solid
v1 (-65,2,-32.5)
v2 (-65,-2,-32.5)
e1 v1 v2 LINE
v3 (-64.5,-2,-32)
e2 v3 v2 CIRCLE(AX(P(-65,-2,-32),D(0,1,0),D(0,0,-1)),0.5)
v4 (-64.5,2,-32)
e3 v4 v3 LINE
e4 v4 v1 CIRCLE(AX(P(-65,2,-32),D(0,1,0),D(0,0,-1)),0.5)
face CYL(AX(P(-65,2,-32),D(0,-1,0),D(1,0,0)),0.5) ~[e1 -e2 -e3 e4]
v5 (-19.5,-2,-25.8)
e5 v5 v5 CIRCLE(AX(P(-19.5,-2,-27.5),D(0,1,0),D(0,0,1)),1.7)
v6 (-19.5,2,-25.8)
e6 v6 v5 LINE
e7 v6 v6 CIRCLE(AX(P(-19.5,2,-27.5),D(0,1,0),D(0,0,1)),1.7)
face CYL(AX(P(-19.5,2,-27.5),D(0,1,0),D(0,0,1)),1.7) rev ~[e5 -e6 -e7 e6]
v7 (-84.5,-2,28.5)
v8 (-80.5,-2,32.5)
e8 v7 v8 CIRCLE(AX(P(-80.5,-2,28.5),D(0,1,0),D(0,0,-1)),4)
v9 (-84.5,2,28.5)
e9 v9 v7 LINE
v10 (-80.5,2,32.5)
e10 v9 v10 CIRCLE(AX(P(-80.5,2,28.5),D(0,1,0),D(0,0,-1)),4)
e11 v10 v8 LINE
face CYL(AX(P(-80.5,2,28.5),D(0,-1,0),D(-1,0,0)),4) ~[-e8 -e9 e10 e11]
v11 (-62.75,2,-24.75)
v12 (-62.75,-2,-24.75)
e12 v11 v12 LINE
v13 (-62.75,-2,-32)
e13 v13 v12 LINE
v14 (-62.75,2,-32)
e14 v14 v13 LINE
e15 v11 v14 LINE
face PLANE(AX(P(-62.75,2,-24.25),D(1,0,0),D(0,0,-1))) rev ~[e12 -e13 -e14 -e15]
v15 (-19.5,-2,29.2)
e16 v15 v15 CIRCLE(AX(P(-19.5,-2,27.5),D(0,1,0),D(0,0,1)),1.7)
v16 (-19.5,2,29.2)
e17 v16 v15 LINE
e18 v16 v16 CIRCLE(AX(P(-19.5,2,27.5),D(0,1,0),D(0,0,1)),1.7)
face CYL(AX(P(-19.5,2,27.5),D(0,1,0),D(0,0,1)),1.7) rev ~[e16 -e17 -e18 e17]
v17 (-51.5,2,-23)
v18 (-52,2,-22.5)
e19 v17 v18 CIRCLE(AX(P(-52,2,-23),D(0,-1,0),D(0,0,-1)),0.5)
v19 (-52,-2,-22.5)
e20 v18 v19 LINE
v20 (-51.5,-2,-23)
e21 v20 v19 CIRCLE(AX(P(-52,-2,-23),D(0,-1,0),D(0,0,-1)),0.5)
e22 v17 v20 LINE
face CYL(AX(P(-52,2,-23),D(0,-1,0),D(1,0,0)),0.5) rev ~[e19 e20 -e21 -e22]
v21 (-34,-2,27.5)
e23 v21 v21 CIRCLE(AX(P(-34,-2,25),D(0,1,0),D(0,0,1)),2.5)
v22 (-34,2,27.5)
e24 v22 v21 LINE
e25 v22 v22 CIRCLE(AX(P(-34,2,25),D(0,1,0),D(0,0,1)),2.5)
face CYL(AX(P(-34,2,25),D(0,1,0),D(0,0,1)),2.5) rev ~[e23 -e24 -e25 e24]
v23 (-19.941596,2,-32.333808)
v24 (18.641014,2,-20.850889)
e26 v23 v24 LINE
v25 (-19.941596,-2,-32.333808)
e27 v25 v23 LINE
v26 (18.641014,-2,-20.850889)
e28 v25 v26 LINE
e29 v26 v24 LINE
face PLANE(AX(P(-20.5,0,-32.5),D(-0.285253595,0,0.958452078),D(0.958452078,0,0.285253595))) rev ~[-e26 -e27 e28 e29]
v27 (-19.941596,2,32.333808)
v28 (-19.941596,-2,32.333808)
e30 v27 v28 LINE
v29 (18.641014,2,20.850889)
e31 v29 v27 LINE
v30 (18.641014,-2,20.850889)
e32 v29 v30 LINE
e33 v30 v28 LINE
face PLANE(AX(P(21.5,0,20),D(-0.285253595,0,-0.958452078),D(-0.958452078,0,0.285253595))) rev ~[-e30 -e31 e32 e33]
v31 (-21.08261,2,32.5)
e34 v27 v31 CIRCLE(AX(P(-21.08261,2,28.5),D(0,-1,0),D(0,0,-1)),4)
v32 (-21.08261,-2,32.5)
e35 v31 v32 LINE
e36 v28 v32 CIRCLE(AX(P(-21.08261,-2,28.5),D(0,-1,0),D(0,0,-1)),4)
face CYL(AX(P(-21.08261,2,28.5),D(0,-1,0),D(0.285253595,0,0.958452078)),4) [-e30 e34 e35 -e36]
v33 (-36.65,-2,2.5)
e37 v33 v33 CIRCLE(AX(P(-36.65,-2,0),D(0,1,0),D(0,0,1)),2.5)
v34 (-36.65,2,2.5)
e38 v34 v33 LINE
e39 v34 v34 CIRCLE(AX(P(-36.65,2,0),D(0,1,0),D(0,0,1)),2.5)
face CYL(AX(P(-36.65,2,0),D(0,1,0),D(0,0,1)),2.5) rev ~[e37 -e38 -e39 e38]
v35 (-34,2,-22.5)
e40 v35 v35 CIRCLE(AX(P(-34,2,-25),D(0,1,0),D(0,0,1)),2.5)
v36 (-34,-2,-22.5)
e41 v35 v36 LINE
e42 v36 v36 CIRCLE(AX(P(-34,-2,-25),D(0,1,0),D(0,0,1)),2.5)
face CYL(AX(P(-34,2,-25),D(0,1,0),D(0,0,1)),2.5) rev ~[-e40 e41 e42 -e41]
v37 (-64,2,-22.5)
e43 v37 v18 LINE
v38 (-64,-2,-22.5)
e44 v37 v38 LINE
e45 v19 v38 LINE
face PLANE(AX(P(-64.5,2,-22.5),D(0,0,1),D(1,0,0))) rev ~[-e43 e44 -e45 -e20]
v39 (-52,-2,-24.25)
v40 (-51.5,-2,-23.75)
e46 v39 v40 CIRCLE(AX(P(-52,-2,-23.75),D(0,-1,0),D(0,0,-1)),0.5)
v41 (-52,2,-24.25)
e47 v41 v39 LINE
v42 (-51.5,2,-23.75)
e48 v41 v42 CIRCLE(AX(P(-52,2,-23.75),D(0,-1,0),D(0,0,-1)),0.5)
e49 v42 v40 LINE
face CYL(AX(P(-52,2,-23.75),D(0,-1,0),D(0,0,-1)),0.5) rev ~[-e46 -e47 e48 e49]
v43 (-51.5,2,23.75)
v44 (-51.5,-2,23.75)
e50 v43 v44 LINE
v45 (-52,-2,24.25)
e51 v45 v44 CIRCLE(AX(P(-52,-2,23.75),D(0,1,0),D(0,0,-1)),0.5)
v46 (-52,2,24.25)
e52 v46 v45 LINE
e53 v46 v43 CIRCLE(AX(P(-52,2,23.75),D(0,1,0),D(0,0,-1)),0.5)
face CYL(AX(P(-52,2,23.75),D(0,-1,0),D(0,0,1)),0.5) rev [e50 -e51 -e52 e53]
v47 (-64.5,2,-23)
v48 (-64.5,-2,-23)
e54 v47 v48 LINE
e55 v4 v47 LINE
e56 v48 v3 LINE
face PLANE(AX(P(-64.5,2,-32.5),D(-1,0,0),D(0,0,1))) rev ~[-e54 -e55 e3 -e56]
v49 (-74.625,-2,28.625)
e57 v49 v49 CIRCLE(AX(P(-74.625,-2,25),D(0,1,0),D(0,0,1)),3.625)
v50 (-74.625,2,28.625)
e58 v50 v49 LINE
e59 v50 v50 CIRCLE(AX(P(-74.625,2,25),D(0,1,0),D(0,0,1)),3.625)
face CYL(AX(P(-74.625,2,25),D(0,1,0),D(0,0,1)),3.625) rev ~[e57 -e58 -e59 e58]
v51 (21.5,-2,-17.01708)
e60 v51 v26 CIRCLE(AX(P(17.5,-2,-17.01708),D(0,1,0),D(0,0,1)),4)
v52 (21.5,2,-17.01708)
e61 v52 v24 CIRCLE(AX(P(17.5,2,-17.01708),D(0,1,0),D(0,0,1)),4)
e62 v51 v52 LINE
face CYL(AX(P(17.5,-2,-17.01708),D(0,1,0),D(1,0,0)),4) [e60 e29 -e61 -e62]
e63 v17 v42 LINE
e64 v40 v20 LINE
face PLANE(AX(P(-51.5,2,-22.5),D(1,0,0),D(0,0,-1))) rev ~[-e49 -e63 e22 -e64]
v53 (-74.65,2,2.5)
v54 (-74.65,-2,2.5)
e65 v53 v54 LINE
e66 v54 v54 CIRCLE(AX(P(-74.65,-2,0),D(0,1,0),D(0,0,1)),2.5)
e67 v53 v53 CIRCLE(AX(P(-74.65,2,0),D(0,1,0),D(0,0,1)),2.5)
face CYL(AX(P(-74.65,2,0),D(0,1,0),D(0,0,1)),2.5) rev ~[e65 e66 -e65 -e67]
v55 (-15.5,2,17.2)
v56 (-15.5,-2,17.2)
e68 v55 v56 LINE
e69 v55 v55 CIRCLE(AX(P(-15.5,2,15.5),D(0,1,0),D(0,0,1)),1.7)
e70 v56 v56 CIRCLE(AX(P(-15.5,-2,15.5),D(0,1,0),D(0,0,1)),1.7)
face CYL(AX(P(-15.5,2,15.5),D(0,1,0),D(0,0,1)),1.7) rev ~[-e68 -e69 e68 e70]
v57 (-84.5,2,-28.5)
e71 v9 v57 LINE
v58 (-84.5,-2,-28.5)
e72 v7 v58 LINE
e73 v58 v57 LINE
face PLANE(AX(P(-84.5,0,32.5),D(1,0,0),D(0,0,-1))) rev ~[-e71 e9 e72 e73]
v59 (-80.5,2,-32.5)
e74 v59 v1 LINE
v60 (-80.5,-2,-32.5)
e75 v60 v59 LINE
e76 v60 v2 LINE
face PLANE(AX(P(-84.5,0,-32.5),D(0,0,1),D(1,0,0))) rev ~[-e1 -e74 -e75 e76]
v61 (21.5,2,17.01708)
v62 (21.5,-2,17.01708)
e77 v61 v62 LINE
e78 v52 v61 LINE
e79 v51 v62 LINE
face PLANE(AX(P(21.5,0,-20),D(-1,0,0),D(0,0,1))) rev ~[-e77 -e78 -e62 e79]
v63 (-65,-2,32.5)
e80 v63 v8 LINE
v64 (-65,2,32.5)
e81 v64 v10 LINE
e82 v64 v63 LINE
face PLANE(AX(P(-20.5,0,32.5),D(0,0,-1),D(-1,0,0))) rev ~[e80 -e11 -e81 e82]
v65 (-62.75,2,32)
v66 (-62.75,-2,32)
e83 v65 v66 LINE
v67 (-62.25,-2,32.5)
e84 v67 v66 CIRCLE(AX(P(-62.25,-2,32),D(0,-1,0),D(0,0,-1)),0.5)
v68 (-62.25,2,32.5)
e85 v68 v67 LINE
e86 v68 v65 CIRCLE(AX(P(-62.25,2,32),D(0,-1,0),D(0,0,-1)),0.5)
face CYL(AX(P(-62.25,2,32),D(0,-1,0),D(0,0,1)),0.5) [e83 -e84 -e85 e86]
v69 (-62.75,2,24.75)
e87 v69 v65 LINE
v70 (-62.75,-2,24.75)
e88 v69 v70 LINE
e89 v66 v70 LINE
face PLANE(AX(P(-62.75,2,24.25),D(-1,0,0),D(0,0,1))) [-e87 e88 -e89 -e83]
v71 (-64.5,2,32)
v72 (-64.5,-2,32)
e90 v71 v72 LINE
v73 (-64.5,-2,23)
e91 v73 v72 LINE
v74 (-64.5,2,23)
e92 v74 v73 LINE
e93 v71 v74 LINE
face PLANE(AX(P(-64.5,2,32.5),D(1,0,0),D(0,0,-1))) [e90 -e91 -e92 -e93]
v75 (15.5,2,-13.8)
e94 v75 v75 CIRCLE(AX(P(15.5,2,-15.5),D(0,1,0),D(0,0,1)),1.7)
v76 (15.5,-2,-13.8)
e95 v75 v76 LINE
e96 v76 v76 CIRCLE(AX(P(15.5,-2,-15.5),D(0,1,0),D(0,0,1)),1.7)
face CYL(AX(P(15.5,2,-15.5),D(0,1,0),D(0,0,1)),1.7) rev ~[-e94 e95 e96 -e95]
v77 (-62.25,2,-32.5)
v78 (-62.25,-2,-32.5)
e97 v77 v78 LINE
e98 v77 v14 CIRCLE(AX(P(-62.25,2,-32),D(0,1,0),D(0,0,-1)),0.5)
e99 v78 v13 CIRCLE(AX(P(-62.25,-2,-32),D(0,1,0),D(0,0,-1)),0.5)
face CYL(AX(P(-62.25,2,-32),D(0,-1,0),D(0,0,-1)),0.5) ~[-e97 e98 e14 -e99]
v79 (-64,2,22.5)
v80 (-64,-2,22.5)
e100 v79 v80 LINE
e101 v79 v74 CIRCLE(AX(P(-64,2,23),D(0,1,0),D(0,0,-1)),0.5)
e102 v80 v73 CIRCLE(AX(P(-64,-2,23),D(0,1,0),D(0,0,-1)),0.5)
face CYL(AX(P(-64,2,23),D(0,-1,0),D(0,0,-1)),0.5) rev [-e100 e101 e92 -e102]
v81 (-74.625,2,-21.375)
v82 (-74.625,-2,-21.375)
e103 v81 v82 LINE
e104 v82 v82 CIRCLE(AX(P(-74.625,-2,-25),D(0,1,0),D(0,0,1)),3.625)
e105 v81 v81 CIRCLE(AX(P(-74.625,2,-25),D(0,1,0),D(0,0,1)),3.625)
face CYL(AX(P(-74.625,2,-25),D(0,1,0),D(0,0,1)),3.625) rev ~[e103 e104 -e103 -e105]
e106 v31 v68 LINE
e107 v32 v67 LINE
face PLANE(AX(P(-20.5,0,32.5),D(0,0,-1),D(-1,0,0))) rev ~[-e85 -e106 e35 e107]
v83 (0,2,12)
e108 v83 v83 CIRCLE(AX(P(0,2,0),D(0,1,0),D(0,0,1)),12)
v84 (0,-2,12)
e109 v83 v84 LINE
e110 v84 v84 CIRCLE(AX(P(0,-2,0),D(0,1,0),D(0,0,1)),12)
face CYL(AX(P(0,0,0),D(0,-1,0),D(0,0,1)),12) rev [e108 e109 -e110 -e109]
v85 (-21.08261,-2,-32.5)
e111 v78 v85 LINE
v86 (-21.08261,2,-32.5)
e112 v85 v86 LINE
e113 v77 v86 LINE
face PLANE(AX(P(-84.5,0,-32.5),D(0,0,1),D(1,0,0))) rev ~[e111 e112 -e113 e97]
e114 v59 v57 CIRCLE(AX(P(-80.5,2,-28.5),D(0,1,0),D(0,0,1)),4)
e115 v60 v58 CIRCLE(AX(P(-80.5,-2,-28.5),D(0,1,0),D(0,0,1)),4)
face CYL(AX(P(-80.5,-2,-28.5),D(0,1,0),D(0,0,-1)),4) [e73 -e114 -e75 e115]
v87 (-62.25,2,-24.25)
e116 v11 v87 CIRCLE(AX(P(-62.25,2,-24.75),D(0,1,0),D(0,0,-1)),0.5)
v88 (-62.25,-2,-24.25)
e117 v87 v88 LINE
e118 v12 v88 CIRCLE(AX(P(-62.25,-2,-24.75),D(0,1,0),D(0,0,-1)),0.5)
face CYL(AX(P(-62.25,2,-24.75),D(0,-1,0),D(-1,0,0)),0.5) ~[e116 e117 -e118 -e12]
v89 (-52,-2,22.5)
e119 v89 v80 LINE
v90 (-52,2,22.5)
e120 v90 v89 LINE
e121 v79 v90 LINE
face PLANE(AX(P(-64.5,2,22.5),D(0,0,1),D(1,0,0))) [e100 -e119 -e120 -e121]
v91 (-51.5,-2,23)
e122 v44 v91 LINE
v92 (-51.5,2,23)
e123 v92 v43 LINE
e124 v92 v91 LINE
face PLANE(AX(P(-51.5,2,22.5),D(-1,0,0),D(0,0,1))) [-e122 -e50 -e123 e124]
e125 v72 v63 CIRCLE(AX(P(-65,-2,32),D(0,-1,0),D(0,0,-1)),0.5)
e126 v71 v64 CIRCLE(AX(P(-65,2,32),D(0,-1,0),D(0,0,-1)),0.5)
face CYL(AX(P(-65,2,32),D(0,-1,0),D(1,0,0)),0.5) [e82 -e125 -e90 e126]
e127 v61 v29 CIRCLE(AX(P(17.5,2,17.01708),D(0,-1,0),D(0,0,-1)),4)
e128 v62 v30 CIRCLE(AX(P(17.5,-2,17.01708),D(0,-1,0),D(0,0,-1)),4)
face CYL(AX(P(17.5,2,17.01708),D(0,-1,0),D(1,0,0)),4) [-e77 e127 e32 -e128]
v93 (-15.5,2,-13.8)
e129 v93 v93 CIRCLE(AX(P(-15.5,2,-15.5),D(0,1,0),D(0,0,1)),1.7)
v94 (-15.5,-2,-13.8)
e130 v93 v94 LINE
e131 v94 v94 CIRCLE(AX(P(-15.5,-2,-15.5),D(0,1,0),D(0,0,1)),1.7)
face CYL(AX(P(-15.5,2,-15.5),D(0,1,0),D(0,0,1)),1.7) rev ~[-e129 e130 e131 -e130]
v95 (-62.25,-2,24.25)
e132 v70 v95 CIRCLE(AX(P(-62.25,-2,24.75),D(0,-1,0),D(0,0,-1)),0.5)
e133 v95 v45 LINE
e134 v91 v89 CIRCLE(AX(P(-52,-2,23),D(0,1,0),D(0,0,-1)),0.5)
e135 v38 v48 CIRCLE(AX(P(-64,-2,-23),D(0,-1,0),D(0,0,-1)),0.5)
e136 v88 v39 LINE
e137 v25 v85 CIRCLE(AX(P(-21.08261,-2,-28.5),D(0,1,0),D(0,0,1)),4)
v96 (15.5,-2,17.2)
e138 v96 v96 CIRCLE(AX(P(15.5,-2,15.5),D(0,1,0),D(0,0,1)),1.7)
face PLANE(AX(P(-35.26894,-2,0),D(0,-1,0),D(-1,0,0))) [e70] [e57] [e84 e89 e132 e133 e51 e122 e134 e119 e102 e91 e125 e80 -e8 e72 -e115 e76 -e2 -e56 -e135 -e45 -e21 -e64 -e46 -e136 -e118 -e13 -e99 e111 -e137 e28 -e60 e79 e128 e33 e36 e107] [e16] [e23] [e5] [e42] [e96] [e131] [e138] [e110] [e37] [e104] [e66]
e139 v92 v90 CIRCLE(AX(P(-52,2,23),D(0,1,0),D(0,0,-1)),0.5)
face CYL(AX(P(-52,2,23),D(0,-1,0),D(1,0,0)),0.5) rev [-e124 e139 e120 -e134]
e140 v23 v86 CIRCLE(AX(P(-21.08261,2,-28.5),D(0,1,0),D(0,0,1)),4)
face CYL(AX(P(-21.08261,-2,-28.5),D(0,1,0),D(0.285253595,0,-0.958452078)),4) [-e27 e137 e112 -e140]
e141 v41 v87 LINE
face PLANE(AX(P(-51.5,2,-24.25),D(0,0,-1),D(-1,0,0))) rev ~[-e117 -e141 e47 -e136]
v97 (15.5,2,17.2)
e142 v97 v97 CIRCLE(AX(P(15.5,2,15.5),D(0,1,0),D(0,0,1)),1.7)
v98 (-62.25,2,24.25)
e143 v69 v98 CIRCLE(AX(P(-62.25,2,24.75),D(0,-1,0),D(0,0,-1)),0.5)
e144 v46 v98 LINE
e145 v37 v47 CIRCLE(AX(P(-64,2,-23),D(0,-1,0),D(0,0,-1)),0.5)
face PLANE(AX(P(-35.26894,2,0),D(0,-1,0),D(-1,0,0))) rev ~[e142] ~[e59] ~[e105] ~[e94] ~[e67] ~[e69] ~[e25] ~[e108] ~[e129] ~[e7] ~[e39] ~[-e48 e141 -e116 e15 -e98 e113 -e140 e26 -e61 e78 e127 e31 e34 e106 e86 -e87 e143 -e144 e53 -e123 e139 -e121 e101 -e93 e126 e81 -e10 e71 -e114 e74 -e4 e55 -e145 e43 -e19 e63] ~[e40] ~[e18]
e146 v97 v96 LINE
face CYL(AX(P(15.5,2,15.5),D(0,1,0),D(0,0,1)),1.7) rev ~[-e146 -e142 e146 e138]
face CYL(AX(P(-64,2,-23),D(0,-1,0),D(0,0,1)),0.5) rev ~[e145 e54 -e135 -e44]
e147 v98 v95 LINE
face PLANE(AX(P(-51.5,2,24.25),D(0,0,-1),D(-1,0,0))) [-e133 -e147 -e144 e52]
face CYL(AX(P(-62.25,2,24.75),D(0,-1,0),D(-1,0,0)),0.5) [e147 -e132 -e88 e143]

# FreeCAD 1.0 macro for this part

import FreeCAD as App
import Part
import Sketcher
from FreeCAD import Vector
Q = App.Units.Quantity


def edges_at(feature, points):
    """Names of the edges that pass closest to the given points."""
    edges = feature.Shape.Edges
    near = lambda p: min(range(len(edges)), key=lambda i: edges[i].distToShape(Part.Vertex(*p))[0])
    return sorted({f"Edge{near(p) + 1}" for p in points})

doc = App.newDocument("Part")
body = doc.addObject("PartDesign::Body", "Body")

# Sketch on XZ plane
sketch1 = doc.addObject("Sketcher::SketchObject", "Sketch")
body.addObject(sketch1)
sketch1.AttachmentSupport = (doc.XZ_Plane, [""])
sketch1.MapMode = "FlatFace"
sketch1.addGeometry([
    Part.LineSegment(Vector(22, 20, 0), Vector(22, -20, 0)),  # 0
    Part.LineSegment(Vector(22, -20, 0), Vector(-20, -32, 0)),  # 1
    Part.LineSegment(Vector(-20, -32, 0), Vector(-84, -32, 0)),  # 2
    Part.LineSegment(Vector(-84, -32, 0), Vector(-84, 32, 0)),  # 3
    Part.LineSegment(Vector(-84, 32, 0), Vector(-20, 32, 0)),  # 4
    Part.LineSegment(Vector(-20, 32, 0), Vector(22, 20, 0)),  # 5
    Part.Circle(Vector(0, 0, 0), Vector(0, 0, 1), 12),  # 6
], False)
sketch1.addConstraint([
    Sketcher.Constraint("Coincident", 0, 2, 1, 1),
    Sketcher.Constraint("Coincident", 1, 2, 2, 1),
    Sketcher.Constraint("Coincident", 2, 2, 3, 1),
    Sketcher.Constraint("Coincident", 3, 2, 4, 1),
    Sketcher.Constraint("Coincident", 4, 2, 5, 1),
    Sketcher.Constraint("Coincident", 5, 2, 0, 1),
    Sketcher.Constraint("Vertical", 0),
    Sketcher.Constraint("Horizontal", 2),
    Sketcher.Constraint("Vertical", 3),
    Sketcher.Constraint("Horizontal", 4),
    Sketcher.Constraint("Coincident", 6, 3, -1, 1),
    Sketcher.Constraint("Symmetric", 1, 2, 4, 2, -1),
    Sketcher.Constraint("Equal", 1, 5),
    Sketcher.Constraint("Diameter", 6, Q("24 mm")),
    Sketcher.Constraint("DistanceX", 2, 2, 2, 1, Q("64 mm")),
    Sketcher.Constraint("DistanceY", 0, 2, 0, 1, Q("40 mm")),
    Sketcher.Constraint("DistanceY", 3, 1, 3, 2, Q("65 mm")),
    Sketcher.Constraint("DistanceX", 1, 2, 0, 2, Q("42 mm")),
    Sketcher.Constraint("DistanceX", -1, 1, 0, 2, Q("21.5 mm")),
])
pad1 = doc.addObject("PartDesign::Pad", "Pad")
body.addObject(pad1)
pad1.Profile = sketch1
pad1.Length = 4
pad1.Midplane = True

# Sketch on XZ plane
sketch2 = doc.addObject("Sketcher::SketchObject", "Sketch001")
body.addObject(sketch2)
sketch2.AttachmentSupport = (doc.XZ_Plane, [""])
sketch2.MapMode = "FlatFace"
sketch2.AttachmentOffset = App.Placement(Vector(0, 0, -2), App.Rotation())
sketch2.addGeometry([
    Part.Circle(Vector(15.5, -15.5, 0), Vector(0, 0, 1), 1.7),  # 0
    Part.Circle(Vector(-15.5, -15.5, 0), Vector(0, 0, 1), 1.7),  # 1
    Part.Circle(Vector(-15.5, 15.5, 0), Vector(0, 0, 1), 1.7),  # 2
    Part.Circle(Vector(15.5, 15.5, 0), Vector(0, 0, 1), 1.7),  # 3
    Part.Circle(Vector(-19.5, -27.5, 0), Vector(0, 0, 1), 1.7),  # 4
    Part.Circle(Vector(-19.5, 27.5, 0), Vector(0, 0, 1), 1.7),  # 5
], False)
sketch2.addConstraint([
    Sketcher.Constraint("Equal", 0, 1),
    Sketcher.Constraint("Equal", 1, 2),
    Sketcher.Constraint("Equal", 2, 3),
    Sketcher.Constraint("Equal", 3, 4),
    Sketcher.Constraint("Equal", 4, 5),
    Sketcher.Constraint("Symmetric", 0, 3, 2, 3, -1, 1),
    Sketcher.Constraint("Symmetric", 1, 3, 3, 3, -1, 1),
    Sketcher.Constraint("Symmetric", 0, 3, 1, 3, -2),
    Sketcher.Constraint("Symmetric", 4, 3, 5, 3, -1),
    Sketcher.Constraint("Diameter", 0, Q("3.4 mm")),
    Sketcher.Constraint("DistanceX", 1, 3, 0, 3, Q("31 mm")),
    Sketcher.Constraint("DistanceY", 1, 3, 2, 3, Q("31 mm")),
    Sketcher.Constraint("DistanceX", 4, 3, 1, 3, Q("4 mm")),
    Sketcher.Constraint("DistanceY", 4, 3, 1, 3, Q("12 mm")),
])
pocket1 = doc.addObject("PartDesign::Pocket", "Pocket")
body.addObject(pocket1)
pocket1.Profile = sketch2
pocket1.Type = "ThroughAll"
pocket1.Reversed = True

# Sketch on XZ plane
sketch3 = doc.addObject("Sketcher::SketchObject", "Sketch002")
body.addObject(sketch3)
sketch3.AttachmentSupport = (doc.XZ_Plane, [""])
sketch3.MapMode = "FlatFace"
sketch3.AttachmentOffset = App.Placement(Vector(0, 0, -2), App.Rotation())
sketch3.addGeometry([
    Part.Circle(Vector(-74.7, 0, 0), Vector(0, 0, 1), 2.5),  # 0
    Part.Circle(Vector(-36.6, 0, 0), Vector(0, 0, 1), 2.5),  # 1
    Part.Circle(Vector(-34, -25, 0), Vector(0, 0, 1), 2.5),  # 2
    Part.Circle(Vector(-34, 25, 0), Vector(0, 0, 1), 2.5),  # 3
    Part.Circle(Vector(-74.6, -25, 0), Vector(0, 0, 1), 3.6),  # 4
    Part.Circle(Vector(-74.6, 25, 0), Vector(0, 0, 1), 3.6),  # 5
], False)
sketch3.addConstraint([
    Sketcher.Constraint("Equal", 0, 1),
    Sketcher.Constraint("Equal", 1, 2),
    Sketcher.Constraint("Equal", 2, 3),
    Sketcher.Constraint("Equal", 4, 5),
    Sketcher.Constraint("Symmetric", 2, 3, 3, 3, -1),
    Sketcher.Constraint("Symmetric", 4, 3, 5, 3, -1),
    Sketcher.Constraint("PointOnObject", 0, 3, -1),
    Sketcher.Constraint("PointOnObject", 1, 3, -1),
    Sketcher.Constraint("Horizontal", 2, 3, 4, 3),
    Sketcher.Constraint("Diameter", 0, Q("5 mm")),
    Sketcher.Constraint("Diameter", 4, Q("7.25 mm")),
    Sketcher.Constraint("DistanceX", 2, 3, -1, 1, Q("34 mm")),
    Sketcher.Constraint("DistanceY", 2, 3, -1, 1, Q("25 mm")),
    Sketcher.Constraint("DistanceX", 0, 3, 1, 3, Q("38 mm")),
    Sketcher.Constraint("DistanceX", 0, 3, -1, 1, Q("74.65 mm")),
    Sketcher.Constraint("DistanceX", 4, 3, -1, 1, Q("74.625 mm")),
])
pocket2 = doc.addObject("PartDesign::Pocket", "Pocket001")
body.addObject(pocket2)
pocket2.Profile = sketch3
pocket2.Type = "ThroughAll"
pocket2.Reversed = True

# Sketch on XZ plane
sketch4 = doc.addObject("Sketcher::SketchObject", "Sketch003")
body.addObject(sketch4)
sketch4.AttachmentSupport = (doc.XZ_Plane, [""])
sketch4.MapMode = "FlatFace"
sketch4.AttachmentOffset = App.Placement(Vector(0, 0, -2), App.Rotation())
sketch4.addGeometry([
    Part.LineSegment(Vector(-64.5, -32.5, 0), Vector(-64.5, -22.5, 0)),  # 0
    Part.LineSegment(Vector(-64.5, -22.5, 0), Vector(-51.5, -22.5, 0)),  # 1
    Part.LineSegment(Vector(-51.5, -22.5, 0), Vector(-51.5, -24.2, 0)),  # 2
    Part.LineSegment(Vector(-51.5, -24.2, 0), Vector(-62.8, -24.2, 0)),  # 3
    Part.LineSegment(Vector(-62.8, -24.2, 0), Vector(-62.8, -32.5, 0)),  # 4
    Part.LineSegment(Vector(-62.8, -32.5, 0), Vector(-64.5, -32.5, 0)),  # 5
    Part.LineSegment(Vector(-62.8, 32.5, 0), Vector(-62.8, 24.2, 0)),  # 6
    Part.LineSegment(Vector(-62.8, 24.2, 0), Vector(-51.5, 24.2, 0)),  # 7
    Part.LineSegment(Vector(-51.5, 24.2, 0), Vector(-51.5, 22.5, 0)),  # 8
    Part.LineSegment(Vector(-51.5, 22.5, 0), Vector(-64.5, 22.5, 0)),  # 9
    Part.LineSegment(Vector(-64.5, 22.5, 0), Vector(-64.5, 32.5, 0)),  # 10
    Part.LineSegment(Vector(-64.5, 32.5, 0), Vector(-62.8, 32.5, 0)),  # 11
], False)
sketch4.addConstraint([
    Sketcher.Constraint("Coincident", 0, 2, 1, 1),
    Sketcher.Constraint("Coincident", 1, 2, 2, 1),
    Sketcher.Constraint("Coincident", 2, 2, 3, 1),
    Sketcher.Constraint("Coincident", 3, 2, 4, 1),
    Sketcher.Constraint("Coincident", 4, 2, 5, 1),
    Sketcher.Constraint("Coincident", 5, 2, 0, 1),
    Sketcher.Constraint("Coincident", 6, 2, 7, 1),
    Sketcher.Constraint("Coincident", 7, 2, 8, 1),
    Sketcher.Constraint("Coincident", 8, 2, 9, 1),
    Sketcher.Constraint("Coincident", 9, 2, 10, 1),
    Sketcher.Constraint("Coincident", 10, 2, 11, 1),
    Sketcher.Constraint("Coincident", 11, 2, 6, 1),
    Sketcher.Constraint("Vertical", 0),
    Sketcher.Constraint("Horizontal", 1),
    Sketcher.Constraint("Vertical", 2),
    Sketcher.Constraint("Horizontal", 3),
    Sketcher.Constraint("Vertical", 4),
    Sketcher.Constraint("Horizontal", 5),
    Sketcher.Constraint("Vertical", 6),
    Sketcher.Constraint("Horizontal", 7),
    Sketcher.Constraint("Vertical", 8),
    Sketcher.Constraint("Horizontal", 9),
    Sketcher.Constraint("Vertical", 10),
    Sketcher.Constraint("Horizontal", 11),
    Sketcher.Constraint("Symmetric", 3, 2, 6, 2, -1),
    Sketcher.Constraint("Symmetric", 1, 2, 8, 2, -1),
    Sketcher.Constraint("Symmetric", 5, 2, 10, 2, -1),
    Sketcher.Constraint("Equal", 11, 2),
    Sketcher.Constraint("DistanceX", 1, 1, 1, 2, Q("13 mm")),
    Sketcher.Constraint("DistanceY", 0, 1, 0, 2, Q("10 mm")),
    Sketcher.Constraint("DistanceY", 1, 2, 8, 2, Q("45 mm")),
    Sketcher.Constraint("DistanceX", 3, 2, 3, 1, Q("11.25 mm")),
    Sketcher.Constraint("DistanceX", 0, 2, -1, 1, Q("64.5 mm")),
])
pocket3 = doc.addObject("PartDesign::Pocket", "Pocket002")
body.addObject(pocket3)
pocket3.Profile = sketch4
pocket3.Type = "ThroughAll"
pocket3.Reversed = True
doc.recompute()

fillet = doc.addObject("PartDesign::Fillet", "Fillet")
body.addObject(fillet)
fillet.Base = (pocket3, edges_at(pocket3, [
    (-20.5, 0, 32.5),
    (-84.5, 0, 32.5),
    (-84.5, 0, -32.5),
    (-20.5, 0, -32.5),
    (21.5, 0, -20),
    (21.5, 0, 20),
]))
fillet.Radius = 4
doc.recompute()

fillet2 = doc.addObject("PartDesign::Fillet", "Fillet001")
body.addObject(fillet2)
fillet2.Base = (fillet, edges_at(fillet, [
    (-62.75, 0, 24.25),
    (-62.75, 0, 32.5),
    (-64.5, 0, 32.5),
    (-64.5, 0, 22.5),
    (-51.5, 0, 22.5),
    (-64.5, 0, -32.5),
    (-62.75, 0, -32.5),
    (-62.75, 0, -24.25),
    (-51.5, 0, -24.25),
    (-51.5, 0, -22.5),
    (-64.5, 0, -22.5),
    (-51.5, 0, 24.25),
]))
fillet2.Radius = 0.5

doc.recompute()
